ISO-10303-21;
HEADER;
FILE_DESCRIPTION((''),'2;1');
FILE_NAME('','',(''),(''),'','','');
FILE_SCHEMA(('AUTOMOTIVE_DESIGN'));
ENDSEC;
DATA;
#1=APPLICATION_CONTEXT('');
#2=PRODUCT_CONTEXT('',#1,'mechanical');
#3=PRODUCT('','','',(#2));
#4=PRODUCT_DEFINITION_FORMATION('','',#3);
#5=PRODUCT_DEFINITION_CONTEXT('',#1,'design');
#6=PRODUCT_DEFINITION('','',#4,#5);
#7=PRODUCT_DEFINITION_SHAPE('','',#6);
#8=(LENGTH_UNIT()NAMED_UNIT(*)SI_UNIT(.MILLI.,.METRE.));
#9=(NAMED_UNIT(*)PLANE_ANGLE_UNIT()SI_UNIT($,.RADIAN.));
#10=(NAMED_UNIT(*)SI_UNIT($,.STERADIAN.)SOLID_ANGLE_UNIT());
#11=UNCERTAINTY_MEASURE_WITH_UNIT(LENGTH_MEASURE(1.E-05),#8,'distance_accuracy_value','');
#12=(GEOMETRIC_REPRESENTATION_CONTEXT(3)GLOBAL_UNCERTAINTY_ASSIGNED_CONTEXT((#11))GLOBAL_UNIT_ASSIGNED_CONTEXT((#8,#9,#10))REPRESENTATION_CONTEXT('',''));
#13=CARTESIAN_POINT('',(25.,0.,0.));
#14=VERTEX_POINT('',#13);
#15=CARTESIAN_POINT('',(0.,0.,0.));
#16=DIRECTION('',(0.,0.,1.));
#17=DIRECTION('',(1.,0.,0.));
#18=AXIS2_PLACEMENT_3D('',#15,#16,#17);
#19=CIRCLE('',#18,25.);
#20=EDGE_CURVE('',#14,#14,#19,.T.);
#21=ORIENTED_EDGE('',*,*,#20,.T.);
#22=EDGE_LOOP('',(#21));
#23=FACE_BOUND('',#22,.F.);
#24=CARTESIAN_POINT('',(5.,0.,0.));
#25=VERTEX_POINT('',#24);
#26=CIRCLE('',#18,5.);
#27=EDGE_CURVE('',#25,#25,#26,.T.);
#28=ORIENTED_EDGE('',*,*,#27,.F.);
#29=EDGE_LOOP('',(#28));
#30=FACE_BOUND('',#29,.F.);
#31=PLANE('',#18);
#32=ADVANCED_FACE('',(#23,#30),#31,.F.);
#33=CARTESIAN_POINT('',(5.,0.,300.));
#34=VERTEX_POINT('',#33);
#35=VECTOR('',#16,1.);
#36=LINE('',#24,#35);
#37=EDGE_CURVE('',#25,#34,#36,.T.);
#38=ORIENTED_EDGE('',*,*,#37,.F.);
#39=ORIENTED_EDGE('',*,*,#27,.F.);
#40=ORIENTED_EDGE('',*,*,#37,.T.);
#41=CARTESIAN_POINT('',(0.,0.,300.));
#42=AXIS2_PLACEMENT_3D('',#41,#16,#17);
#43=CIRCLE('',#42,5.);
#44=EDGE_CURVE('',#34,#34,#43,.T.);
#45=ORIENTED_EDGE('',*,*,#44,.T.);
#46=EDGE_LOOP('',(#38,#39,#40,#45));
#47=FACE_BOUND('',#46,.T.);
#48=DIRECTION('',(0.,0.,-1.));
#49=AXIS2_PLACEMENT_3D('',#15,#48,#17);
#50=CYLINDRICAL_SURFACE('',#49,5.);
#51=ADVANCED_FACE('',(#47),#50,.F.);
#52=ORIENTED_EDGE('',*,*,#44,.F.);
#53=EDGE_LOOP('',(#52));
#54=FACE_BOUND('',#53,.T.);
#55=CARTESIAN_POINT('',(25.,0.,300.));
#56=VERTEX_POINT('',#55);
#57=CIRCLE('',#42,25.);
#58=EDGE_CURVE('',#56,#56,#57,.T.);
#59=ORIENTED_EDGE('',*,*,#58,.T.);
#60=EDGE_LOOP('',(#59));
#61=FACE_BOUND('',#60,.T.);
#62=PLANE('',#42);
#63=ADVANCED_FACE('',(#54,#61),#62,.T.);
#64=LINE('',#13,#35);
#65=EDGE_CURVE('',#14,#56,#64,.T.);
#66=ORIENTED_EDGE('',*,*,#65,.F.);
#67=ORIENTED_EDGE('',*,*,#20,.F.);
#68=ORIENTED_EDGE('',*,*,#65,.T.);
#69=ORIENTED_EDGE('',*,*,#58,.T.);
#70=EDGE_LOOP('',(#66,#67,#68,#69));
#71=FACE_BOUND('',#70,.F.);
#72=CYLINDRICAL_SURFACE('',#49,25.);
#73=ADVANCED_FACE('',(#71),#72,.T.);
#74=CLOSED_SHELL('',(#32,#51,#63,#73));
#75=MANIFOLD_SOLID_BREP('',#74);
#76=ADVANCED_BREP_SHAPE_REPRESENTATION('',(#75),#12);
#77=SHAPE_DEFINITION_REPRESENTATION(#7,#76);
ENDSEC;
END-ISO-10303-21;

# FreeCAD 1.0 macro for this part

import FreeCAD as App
import Part
import Sketcher
from FreeCAD import Vector
Q = App.Units.Quantity

doc = App.newDocument("Part")
body = doc.addObject("PartDesign::Body", "Body")

# Sketch on XY plane
sketch1 = doc.addObject("Sketcher::SketchObject", "Sketch")
body.addObject(sketch1)
sketch1.AttachmentSupport = (doc.XY_Plane, [""])
sketch1.MapMode = "FlatFace"
sketch1.addGeometry([
    Part.Circle(Vector(0, 0, 0), Vector(0, 0, 1), 25),
    Part.Circle(Vector(0, 0, 0), Vector(0, 0, 1), 5),
], False)
sketch1.addConstraint([
    Sketcher.Constraint("Coincident", 0, 3, -1, 1),
    Sketcher.Constraint("Coincident", 1, 3, -1, 1),
    Sketcher.Constraint("Diameter", 0, Q("50 mm")),
    Sketcher.Constraint("Diameter", 1, Q("10 mm")),
])
pad1 = doc.addObject("PartDesign::Pad", "Pad")
body.addObject(pad1)
pad1.Profile = sketch1
pad1.Length = 300

doc.recompute()
